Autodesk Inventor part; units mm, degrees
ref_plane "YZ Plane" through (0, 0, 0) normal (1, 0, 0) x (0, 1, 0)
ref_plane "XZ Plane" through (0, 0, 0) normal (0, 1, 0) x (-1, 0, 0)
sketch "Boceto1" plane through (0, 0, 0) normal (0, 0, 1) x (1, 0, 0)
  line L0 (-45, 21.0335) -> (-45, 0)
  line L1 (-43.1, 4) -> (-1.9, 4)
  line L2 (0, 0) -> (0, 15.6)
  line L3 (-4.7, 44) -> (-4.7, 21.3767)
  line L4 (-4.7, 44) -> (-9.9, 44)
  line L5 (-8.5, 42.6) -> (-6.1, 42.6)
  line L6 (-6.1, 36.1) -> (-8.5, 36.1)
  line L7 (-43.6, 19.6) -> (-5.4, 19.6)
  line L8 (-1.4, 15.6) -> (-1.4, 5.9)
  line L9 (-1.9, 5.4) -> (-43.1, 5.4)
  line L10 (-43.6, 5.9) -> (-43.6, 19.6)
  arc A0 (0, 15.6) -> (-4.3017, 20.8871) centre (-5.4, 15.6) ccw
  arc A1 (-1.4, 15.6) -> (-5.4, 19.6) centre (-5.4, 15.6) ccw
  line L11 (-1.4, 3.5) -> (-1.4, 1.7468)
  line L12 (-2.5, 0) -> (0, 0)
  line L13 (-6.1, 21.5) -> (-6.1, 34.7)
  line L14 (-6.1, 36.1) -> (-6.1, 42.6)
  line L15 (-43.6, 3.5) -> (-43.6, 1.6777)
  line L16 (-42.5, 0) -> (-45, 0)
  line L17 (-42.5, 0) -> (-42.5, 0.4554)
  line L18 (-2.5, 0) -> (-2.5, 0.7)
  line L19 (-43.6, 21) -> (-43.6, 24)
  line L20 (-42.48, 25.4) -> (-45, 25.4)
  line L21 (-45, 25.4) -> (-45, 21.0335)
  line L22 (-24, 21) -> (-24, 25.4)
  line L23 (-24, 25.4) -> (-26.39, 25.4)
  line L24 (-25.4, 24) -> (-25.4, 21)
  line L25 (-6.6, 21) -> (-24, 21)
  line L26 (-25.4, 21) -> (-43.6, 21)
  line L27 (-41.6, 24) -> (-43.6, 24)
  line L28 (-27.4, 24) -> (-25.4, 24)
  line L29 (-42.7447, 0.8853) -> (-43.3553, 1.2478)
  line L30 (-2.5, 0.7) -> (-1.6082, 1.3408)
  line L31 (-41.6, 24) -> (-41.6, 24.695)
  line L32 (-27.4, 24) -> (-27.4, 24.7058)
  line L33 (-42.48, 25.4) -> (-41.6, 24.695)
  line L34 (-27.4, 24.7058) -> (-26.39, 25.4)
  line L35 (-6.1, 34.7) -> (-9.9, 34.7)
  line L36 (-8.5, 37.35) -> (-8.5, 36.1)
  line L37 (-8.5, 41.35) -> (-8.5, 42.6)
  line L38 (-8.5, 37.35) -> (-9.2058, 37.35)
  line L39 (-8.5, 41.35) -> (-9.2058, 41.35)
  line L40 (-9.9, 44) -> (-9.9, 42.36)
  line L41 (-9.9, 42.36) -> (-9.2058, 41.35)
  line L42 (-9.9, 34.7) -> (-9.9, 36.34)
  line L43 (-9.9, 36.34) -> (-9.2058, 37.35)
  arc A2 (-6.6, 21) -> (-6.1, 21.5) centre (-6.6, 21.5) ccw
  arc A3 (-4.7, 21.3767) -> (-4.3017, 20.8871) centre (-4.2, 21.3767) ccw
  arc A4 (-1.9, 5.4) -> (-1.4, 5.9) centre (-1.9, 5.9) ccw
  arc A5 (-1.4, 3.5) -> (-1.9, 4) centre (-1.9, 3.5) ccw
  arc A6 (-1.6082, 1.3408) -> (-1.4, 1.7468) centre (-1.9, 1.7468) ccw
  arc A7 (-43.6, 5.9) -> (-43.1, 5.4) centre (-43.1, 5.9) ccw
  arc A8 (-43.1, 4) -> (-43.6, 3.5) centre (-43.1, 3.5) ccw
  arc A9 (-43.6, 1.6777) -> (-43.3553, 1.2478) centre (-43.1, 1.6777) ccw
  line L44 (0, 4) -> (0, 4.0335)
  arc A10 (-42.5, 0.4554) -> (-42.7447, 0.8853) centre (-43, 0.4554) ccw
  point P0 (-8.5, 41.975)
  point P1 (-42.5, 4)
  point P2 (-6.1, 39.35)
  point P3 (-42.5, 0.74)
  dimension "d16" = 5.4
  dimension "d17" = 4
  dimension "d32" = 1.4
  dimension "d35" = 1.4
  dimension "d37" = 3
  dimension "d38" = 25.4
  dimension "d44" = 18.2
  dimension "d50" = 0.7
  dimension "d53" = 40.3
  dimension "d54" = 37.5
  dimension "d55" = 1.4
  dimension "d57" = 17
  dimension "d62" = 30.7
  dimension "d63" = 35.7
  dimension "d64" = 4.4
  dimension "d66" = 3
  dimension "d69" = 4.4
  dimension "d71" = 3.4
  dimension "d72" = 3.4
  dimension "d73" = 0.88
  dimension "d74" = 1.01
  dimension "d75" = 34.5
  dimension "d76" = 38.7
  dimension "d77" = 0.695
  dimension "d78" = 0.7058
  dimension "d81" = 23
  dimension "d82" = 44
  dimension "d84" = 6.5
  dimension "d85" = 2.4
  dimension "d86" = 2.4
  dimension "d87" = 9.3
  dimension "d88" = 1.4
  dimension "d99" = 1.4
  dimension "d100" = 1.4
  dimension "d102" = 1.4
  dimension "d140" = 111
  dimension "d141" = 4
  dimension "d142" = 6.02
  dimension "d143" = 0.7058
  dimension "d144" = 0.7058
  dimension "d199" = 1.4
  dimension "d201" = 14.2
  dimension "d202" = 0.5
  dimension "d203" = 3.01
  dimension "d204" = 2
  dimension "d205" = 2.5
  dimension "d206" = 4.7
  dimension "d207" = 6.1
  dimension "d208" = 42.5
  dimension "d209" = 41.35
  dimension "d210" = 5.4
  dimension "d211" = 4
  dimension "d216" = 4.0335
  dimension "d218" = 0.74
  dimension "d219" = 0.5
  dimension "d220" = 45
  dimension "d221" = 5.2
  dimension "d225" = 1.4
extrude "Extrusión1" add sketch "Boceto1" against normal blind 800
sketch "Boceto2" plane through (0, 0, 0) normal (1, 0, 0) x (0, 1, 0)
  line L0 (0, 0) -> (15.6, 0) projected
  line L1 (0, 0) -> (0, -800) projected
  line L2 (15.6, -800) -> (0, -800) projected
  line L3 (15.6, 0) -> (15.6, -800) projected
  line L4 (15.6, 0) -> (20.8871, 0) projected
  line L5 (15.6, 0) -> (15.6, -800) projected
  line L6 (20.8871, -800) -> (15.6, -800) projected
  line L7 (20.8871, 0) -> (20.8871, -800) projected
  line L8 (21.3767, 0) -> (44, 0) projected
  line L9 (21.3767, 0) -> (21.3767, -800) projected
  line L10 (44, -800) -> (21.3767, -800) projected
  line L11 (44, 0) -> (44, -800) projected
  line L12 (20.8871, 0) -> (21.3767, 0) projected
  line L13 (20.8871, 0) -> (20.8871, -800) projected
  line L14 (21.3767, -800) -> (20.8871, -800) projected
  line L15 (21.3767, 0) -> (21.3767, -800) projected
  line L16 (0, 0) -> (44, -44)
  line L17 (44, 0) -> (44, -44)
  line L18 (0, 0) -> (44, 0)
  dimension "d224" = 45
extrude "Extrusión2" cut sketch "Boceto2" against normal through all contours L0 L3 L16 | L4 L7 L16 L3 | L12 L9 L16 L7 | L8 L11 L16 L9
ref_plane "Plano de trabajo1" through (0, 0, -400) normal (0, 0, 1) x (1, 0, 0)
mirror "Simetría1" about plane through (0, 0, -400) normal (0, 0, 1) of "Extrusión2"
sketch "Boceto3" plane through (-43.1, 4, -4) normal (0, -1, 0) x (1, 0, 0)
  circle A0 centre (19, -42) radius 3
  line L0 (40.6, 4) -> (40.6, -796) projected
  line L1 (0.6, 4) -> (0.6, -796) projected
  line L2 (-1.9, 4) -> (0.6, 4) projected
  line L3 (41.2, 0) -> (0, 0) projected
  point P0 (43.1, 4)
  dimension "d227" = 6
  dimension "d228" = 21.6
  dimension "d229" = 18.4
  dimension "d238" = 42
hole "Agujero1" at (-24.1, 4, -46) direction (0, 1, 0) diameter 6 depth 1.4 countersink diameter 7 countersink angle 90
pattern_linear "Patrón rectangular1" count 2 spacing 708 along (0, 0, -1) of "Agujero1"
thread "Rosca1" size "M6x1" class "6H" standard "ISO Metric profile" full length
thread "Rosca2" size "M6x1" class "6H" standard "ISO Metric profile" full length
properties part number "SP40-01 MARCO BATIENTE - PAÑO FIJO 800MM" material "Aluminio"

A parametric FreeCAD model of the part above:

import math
import FreeCAD as App
import Part
import Sketcher
Q = App.Units.Quantity


def add_polygon(sketch, points):
    """Adds a closed chain of lines whose ends are joined by coincident constraints."""
    first, n = sketch.GeometryCount, len(points)
    for a, b in zip(points, points[1:] + points[:1]):
        sketch.addGeometry(Part.LineSegment(App.Vector(*a, 0), App.Vector(*b, 0)), False)
    for i in range(n):
        sketch.addConstraint(Sketcher.Constraint("Coincident", first + i, 2, first + (i + 1) % n, 1))

doc = App.newDocument("Part")
body = doc.addObject("PartDesign::Body", "Body")

sketch1 = doc.addObject("Sketcher::SketchObject", "Sketch")
body.addObject(sketch1)
sketch1.AttachmentSupport = (doc.XY_Plane, [""])
sketch1.MapMode = "FlatFace"
sketch1.addGeometry([
    Part.LineSegment(App.Vector(-45, 25.4, 0), App.Vector(-45, 0, 0)),
    Part.LineSegment(App.Vector(-45, 0, 0), App.Vector(-42.5, 0, 0)),
    Part.LineSegment(App.Vector(-42.5, 0, 0), App.Vector(-42.5, 0.4554, 0)),
    Part.ArcOfCircle(Part.Circle(App.Vector(-43, 0.4554, 0), App.Vector(0, 0, 1), 0.5), math.radians(0), math.radians(59.295659)),
    Part.LineSegment(App.Vector(-42.7447, 0.8853, 0), App.Vector(-43.3553, 1.2478, 0)),
    Part.ArcOfCircle(Part.Circle(App.Vector(-43.1, 1.6777, 0), App.Vector(0, 0, 1), 0.5), math.radians(180), math.radians(239.295659)),
    Part.LineSegment(App.Vector(-43.6, 1.6777, 0), App.Vector(-43.6, 3.5, 0)),
    Part.ArcOfCircle(Part.Circle(App.Vector(-43.1, 3.5, 0), App.Vector(0, 0, 1), 0.5), math.radians(90), math.radians(180)),
    Part.LineSegment(App.Vector(-43.1, 4, 0), App.Vector(-1.9, 4, 0)),
    Part.ArcOfCircle(Part.Circle(App.Vector(-1.9, 3.5, 0), App.Vector(0, 0, 1), 0.5), math.radians(0), math.radians(90)),
    Part.LineSegment(App.Vector(-1.4, 3.5, 0), App.Vector(-1.4, 1.7468, 0)),
    Part.ArcOfCircle(Part.Circle(App.Vector(-1.9, 1.7468, 0), App.Vector(0, 0, 1), 0.499983), math.radians(-54.294472), math.radians(0)),
    Part.LineSegment(App.Vector(-1.6082, 1.3408, 0), App.Vector(-2.5, 0.7, 0)),
    Part.LineSegment(App.Vector(-2.5, 0.7, 0), App.Vector(-2.5, 0, 0)),
    Part.LineSegment(App.Vector(-2.5, 0, 0), App.Vector(0, 0, 0)),
    Part.LineSegment(App.Vector(0, 0, 0), App.Vector(0, 15.6, 0)),
    Part.ArcOfCircle(Part.Circle(App.Vector(-5.4, 15.6, 0), App.Vector(0, 0, 1), 5.4), math.radians(0), math.radians(78.264734)),
    Part.ArcOfCircle(Part.Circle(App.Vector(-4.2, 21.3767, 0), App.Vector(0, 0, 1), 0.5), math.radians(180), math.radians(258.265363)),
    Part.LineSegment(App.Vector(-4.7, 21.3767, 0), App.Vector(-4.7, 44, 0)),
    Part.LineSegment(App.Vector(-4.7, 44, 0), App.Vector(-9.9, 44, 0)),
    Part.LineSegment(App.Vector(-9.9, 44, 0), App.Vector(-9.9, 42.36, 0)),
    Part.LineSegment(App.Vector(-9.9, 42.36, 0), App.Vector(-9.2058, 41.35, 0)),
    Part.LineSegment(App.Vector(-9.2058, 41.35, 0), App.Vector(-8.5, 41.35, 0)),
    Part.LineSegment(App.Vector(-8.5, 41.35, 0), App.Vector(-8.5, 42.6, 0)),
    Part.LineSegment(App.Vector(-8.5, 42.6, 0), App.Vector(-6.1, 42.6, 0)),
    Part.LineSegment(App.Vector(-6.1, 42.6, 0), App.Vector(-6.1, 36.1, 0)),
    Part.LineSegment(App.Vector(-6.1, 36.1, 0), App.Vector(-8.5, 36.1, 0)),
    Part.LineSegment(App.Vector(-8.5, 36.1, 0), App.Vector(-8.5, 37.35, 0)),
    Part.LineSegment(App.Vector(-8.5, 37.35, 0), App.Vector(-9.2058, 37.35, 0)),
    Part.LineSegment(App.Vector(-9.2058, 37.35, 0), App.Vector(-9.9, 36.34, 0)),
    Part.LineSegment(App.Vector(-9.9, 36.34, 0), App.Vector(-9.9, 34.7, 0)),
    Part.LineSegment(App.Vector(-9.9, 34.7, 0), App.Vector(-6.1, 34.7, 0)),
    Part.LineSegment(App.Vector(-6.1, 34.7, 0), App.Vector(-6.1, 21.5, 0)),
    Part.ArcOfCircle(Part.Circle(App.Vector(-6.6, 21.5, 0), App.Vector(0, 0, 1), 0.5), math.radians(-90), math.radians(0)),
    Part.LineSegment(App.Vector(-6.6, 21, 0), App.Vector(-24, 21, 0)),
    Part.LineSegment(App.Vector(-24, 21, 0), App.Vector(-24, 25.4, 0)),
    Part.LineSegment(App.Vector(-24, 25.4, 0), App.Vector(-26.39, 25.4, 0)),
    Part.LineSegment(App.Vector(-26.39, 25.4, 0), App.Vector(-27.4, 24.7058, 0)),
    Part.LineSegment(App.Vector(-27.4, 24.7058, 0), App.Vector(-27.4, 24, 0)),
    Part.LineSegment(App.Vector(-27.4, 24, 0), App.Vector(-25.4, 24, 0)),
    Part.LineSegment(App.Vector(-25.4, 24, 0), App.Vector(-25.4, 21, 0)),
    Part.LineSegment(App.Vector(-25.4, 21, 0), App.Vector(-43.6, 21, 0)),
    Part.LineSegment(App.Vector(-43.6, 21, 0), App.Vector(-43.6, 24, 0)),
    Part.LineSegment(App.Vector(-43.6, 24, 0), App.Vector(-41.6, 24, 0)),
    Part.LineSegment(App.Vector(-41.6, 24, 0), App.Vector(-41.6, 24.695, 0)),
    Part.LineSegment(App.Vector(-41.6, 24.695, 0), App.Vector(-42.48, 25.4, 0)),
    Part.LineSegment(App.Vector(-42.48, 25.4, 0), App.Vector(-45, 25.4, 0)),
    Part.LineSegment(App.Vector(-43.6, 5.9, 0), App.Vector(-43.6, 19.6, 0)),
    Part.LineSegment(App.Vector(-43.6, 19.6, 0), App.Vector(-5.4, 19.6, 0)),
    Part.ArcOfCircle(Part.Circle(App.Vector(-5.4, 15.6, 0), App.Vector(0, 0, 1), 4), math.radians(0), math.radians(90)),
    Part.LineSegment(App.Vector(-1.4, 15.6, 0), App.Vector(-1.4, 5.9, 0)),
    Part.ArcOfCircle(Part.Circle(App.Vector(-1.9, 5.9, 0), App.Vector(0, 0, 1), 0.5), math.radians(-90), math.radians(0)),
    Part.LineSegment(App.Vector(-1.9, 5.4, 0), App.Vector(-43.1, 5.4, 0)),
    Part.ArcOfCircle(Part.Circle(App.Vector(-43.1, 5.9, 0), App.Vector(0, 0, 1), 0.5), math.radians(180), math.radians(270)),
], False)
sketch1.addConstraint([
    Sketcher.Constraint("Coincident", 0, 2, 1, 1),
    Sketcher.Constraint("Coincident", 1, 2, 2, 1),
    Sketcher.Constraint("Tangent", 2, 2, 3, 1),
    Sketcher.Constraint("Tangent", 3, 2, 4, 1),
    Sketcher.Constraint("Tangent", 4, 2, 5, 2),
    Sketcher.Constraint("Tangent", 5, 1, 6, 1),
    Sketcher.Constraint("Tangent", 6, 2, 7, 2),
    Sketcher.Constraint("Tangent", 7, 1, 8, 1),
    Sketcher.Constraint("Tangent", 8, 2, 9, 2),
    Sketcher.Constraint("Tangent", 9, 1, 10, 1),
    Sketcher.Constraint("Tangent", 10, 2, 11, 2),
    Sketcher.Constraint("Tangent", 11, 1, 12, 1),
    Sketcher.Constraint("Coincident", 12, 2, 13, 1),
    Sketcher.Constraint("Coincident", 13, 2, 14, 1),
    Sketcher.Constraint("Coincident", 14, 2, 15, 1),
    Sketcher.Constraint("Tangent", 15, 2, 16, 1),
    Sketcher.Constraint("Tangent", 16, 2, 17, 2),
    Sketcher.Constraint("Tangent", 17, 1, 18, 1),
    Sketcher.Constraint("Coincident", 18, 2, 19, 1),
    Sketcher.Constraint("Coincident", 19, 2, 20, 1),
    Sketcher.Constraint("Coincident", 20, 2, 21, 1),
    Sketcher.Constraint("Coincident", 21, 2, 22, 1),
    Sketcher.Constraint("Coincident", 22, 2, 23, 1),
    Sketcher.Constraint("Coincident", 23, 2, 24, 1),
    Sketcher.Constraint("Coincident", 24, 2, 25, 1),
    Sketcher.Constraint("Coincident", 25, 2, 26, 1),
    Sketcher.Constraint("Coincident", 26, 2, 27, 1),
    Sketcher.Constraint("Coincident", 27, 2, 28, 1),
    Sketcher.Constraint("Coincident", 28, 2, 29, 1),
    Sketcher.Constraint("Coincident", 29, 2, 30, 1),
    Sketcher.Constraint("Coincident", 30, 2, 31, 1),
    Sketcher.Constraint("Coincident", 31, 2, 32, 1),
    Sketcher.Constraint("Tangent", 32, 2, 33, 2),
    Sketcher.Constraint("Tangent", 33, 1, 34, 1),
    Sketcher.Constraint("Coincident", 34, 2, 35, 1),
    Sketcher.Constraint("Coincident", 35, 2, 36, 1),
    Sketcher.Constraint("Coincident", 36, 2, 37, 1),
    Sketcher.Constraint("Coincident", 37, 2, 38, 1),
    Sketcher.Constraint("Coincident", 38, 2, 39, 1),
    Sketcher.Constraint("Coincident", 39, 2, 40, 1),
    Sketcher.Constraint("Coincident", 40, 2, 41, 1),
    Sketcher.Constraint("Coincident", 41, 2, 42, 1),
    Sketcher.Constraint("Coincident", 42, 2, 43, 1),
    Sketcher.Constraint("Coincident", 43, 2, 44, 1),
    Sketcher.Constraint("Coincident", 44, 2, 45, 1),
    Sketcher.Constraint("Coincident", 45, 2, 46, 1),
    Sketcher.Constraint("Coincident", 46, 2, 0, 1),
    Sketcher.Constraint("Coincident", 47, 2, 48, 1),
    Sketcher.Constraint("Tangent", 48, 2, 49, 2),
    Sketcher.Constraint("Tangent", 49, 1, 50, 1),
    Sketcher.Constraint("Tangent", 50, 2, 51, 2),
    Sketcher.Constraint("Tangent", 51, 1, 52, 1),
    Sketcher.Constraint("Tangent", 52, 2, 53, 2),
    Sketcher.Constraint("Tangent", 53, 1, 47, 1),
    Sketcher.Constraint("Vertical", 0),
    Sketcher.Constraint("Horizontal", 1),
    Sketcher.Constraint("Vertical", 2),
    Sketcher.Constraint("Vertical", 6),
    Sketcher.Constraint("Horizontal", 8),
    Sketcher.Constraint("Vertical", 10),
    Sketcher.Constraint("Vertical", 13),
    Sketcher.Constraint("Horizontal", 14),
    Sketcher.Constraint("Vertical", 15),
    Sketcher.Constraint("Vertical", 18),
    Sketcher.Constraint("Horizontal", 19),
    Sketcher.Constraint("Vertical", 20),
    Sketcher.Constraint("Horizontal", 22),
    Sketcher.Constraint("Vertical", 23),
    Sketcher.Constraint("Horizontal", 24),
    Sketcher.Constraint("Vertical", 25),
    Sketcher.Constraint("Horizontal", 26),
    Sketcher.Constraint("Vertical", 27),
    Sketcher.Constraint("Horizontal", 28),
    Sketcher.Constraint("Vertical", 30),
    Sketcher.Constraint("Horizontal", 31),
    Sketcher.Constraint("Vertical", 32),
    Sketcher.Constraint("Horizontal", 34),
    Sketcher.Constraint("Vertical", 35),
    Sketcher.Constraint("Horizontal", 36),
    Sketcher.Constraint("Vertical", 38),
    Sketcher.Constraint("Horizontal", 39),
    Sketcher.Constraint("Vertical", 40),
    Sketcher.Constraint("Horizontal", 41),
    Sketcher.Constraint("Vertical", 42),
    Sketcher.Constraint("Horizontal", 43),
    Sketcher.Constraint("Vertical", 44),
    Sketcher.Constraint("Horizontal", 46),
    Sketcher.Constraint("Vertical", 47),
    Sketcher.Constraint("Horizontal", 48),
    Sketcher.Constraint("Vertical", 50),
    Sketcher.Constraint("Horizontal", 52),
    Sketcher.Constraint("Coincident", 14, 2, -1, 1),
    Sketcher.Constraint("Coincident", 49, 3, 16, 3),
    Sketcher.Constraint("Equal", 3, 5),
    Sketcher.Constraint("Equal", 5, 7),
    Sketcher.Constraint("Equal", 7, 9),
    Sketcher.Constraint("Equal", 9, 11),
    Sketcher.Constraint("Equal", 11, 17),
    Sketcher.Constraint("Equal", 17, 33),
    Sketcher.Constraint("Equal", 33, 51),
    Sketcher.Constraint("Equal", 51, 53),
    Sketcher.Constraint("PointOnObject", 0, 2, -1),
    Sketcher.Constraint("Perpendicular", 21, 37),
    Sketcher.Constraint("Horizontal", 34, 2, 40, 2),
    Sketcher.Constraint("Horizontal", 39, 2, 42, 2),
    Sketcher.Constraint("Horizontal", 36, 2, 45, 2),
    Sketcher.Constraint("Vertical", 11, 3, 51, 3),
    Sketcher.Constraint("Vertical", 7, 3, 53, 3),
    Sketcher.Constraint("Vertical", 23, 2, 26, 2),
    Sketcher.Constraint("Vertical", 21, 2, 28, 2),
    Sketcher.Constraint("Vertical", 20, 2, 29, 2),
    Sketcher.Constraint("Vertical", 25, 2, 31, 2),
    Sketcher.Constraint("Vertical", 6, 2, 41, 2),
    Sketcher.Constraint("Equal", 1, 14),
    Sketcher.Constraint("Equal", 39, 43),
    Sketcher.Constraint("Equal", 23, 27),
    Sketcher.Constraint("Equal", 20, 30),
    Sketcher.Constraint("Equal", 28, 38),
    Sketcher.Constraint("Equal", 21, 29),
    Sketcher.Constraint("Equal", 29, 37),
    Sketcher.Constraint("Radius", 49, Q("4 mm")),
    Sketcher.Constraint("Radius", 3, Q("0.5 mm")),
    Sketcher.Constraint("Radius", 16, Q("5.4 mm")),
    Sketcher.Constraint("DistanceX", 39, 1, 39, 2, Q("2 mm")),
    Sketcher.Constraint("DistanceY", 40, 2, 40, 1, Q("3 mm")),
    Sketcher.Constraint("DistanceX", 1, 1, 1, 2, Q("2.5 mm")),
    Sketcher.Constraint("DistanceX", 19, 2, 19, 1, Q("5.2 mm")),
    Sketcher.Constraint("DistanceX", 24, 1, 24, 2, Q("2.4 mm")),
    Sketcher.Constraint("DistanceX", 41, 2, 41, 1, Q("18.2 mm")),
    Sketcher.Constraint("DistanceY", 0, 2, 0, 1, Q("25.4 mm")),
    Sketcher.Constraint("DistanceY", 13, 2, 13, 1, Q("0.7 mm")),
    Sketcher.Constraint("DistanceY", 25, 2, 25, 1, Q("6.5 mm")),
    Sketcher.Constraint("DistanceY", 35, 1, 35, 2, Q("4.4 mm")),
    Sketcher.Constraint("DistanceX", 0, 2, -1, 1, Q("45 mm")),
    Sketcher.Constraint("DistanceY", -1, 1, 7, 1, Q("4 mm")),
    Sketcher.Constraint("DistanceY", -1, 1, 18, 2, Q("44 mm")),
    Sketcher.Constraint("DistanceX", 17, 1, -1, 1, Q("4.7 mm")),
    Sketcher.Constraint("DistanceX", 39, 2, -1, 1, Q("25.4 mm")),
    Sketcher.Constraint("DistanceY", -1, 1, 51, 1, Q("5.4 mm")),
    Sketcher.Constraint("DistanceY", 44, 1, 44, 2, Q("0.695 mm")),
    Sketcher.Constraint("DistanceY", -1, 1, 21, 2, Q("41.35 mm")),
    Sketcher.Constraint("DistanceX", 22, 1, 22, 2, Q("0.7058 mm")),
    Sketcher.Constraint("DistanceX", 34, 2, 34, 1, Q("17.4 mm")),
    Sketcher.Constraint("DistanceY", 15, 1, 15, 2, Q("15.6 mm")),
    Sketcher.Constraint("DistanceY", 32, 2, 32, 1, Q("13.2 mm")),
    Sketcher.Constraint("Angle", 12, Q("-144.301 deg")),
    Sketcher.Constraint("Angle", 45, Q("141.3005 deg")),
    Sketcher.Constraint("DistanceX", 36, 2, 36, 1, Q("2.39 mm")),
    Sketcher.Constraint("Distance", 4, Q("0.71 mm")),
    Sketcher.Constraint("DistanceY", 2, 1, 2, 2, Q("0.4554 mm")),
])
pad1 = doc.addObject("PartDesign::Pad", "Pad")
body.addObject(pad1)
pad1.Profile = sketch1
pad1.Length = 800
pad1.Reversed = True

sketch2 = doc.addObject("Sketcher::SketchObject", "Sketch001")
body.addObject(sketch2)
sketch2.AttachmentSupport = (doc.YZ_Plane, [""])
sketch2.MapMode = "FlatFace"
add_polygon(sketch2, [(0, 0), (44, -44), (44, 0)])
sketch2.addConstraint([
    Sketcher.Constraint("Vertical", 1),
    Sketcher.Constraint("Horizontal", 2),
    Sketcher.Constraint("Coincident", 2, 2, -1, 1),
    Sketcher.Constraint("Equal", 2, 1),
    Sketcher.Constraint("DistanceX", 2, 2, 2, 1, Q("44 mm")),
])
pocket1 = doc.addObject("PartDesign::Pocket", "Pocket")
body.addObject(pocket1)
pocket1.Profile = sketch2
pocket1.Type = "ThroughAll"
doc.recompute()

datumplane = doc.addObject("PartDesign::Plane", "DatumPlane")
body.addObject(datumplane)
datumplane.AttachmentSupport = (doc.XY_Plane, [""])
datumplane.MapMode = "FlatFace"
datumplane.AttachmentOffset = App.Placement(App.Vector(0, 0, -400), App.Rotation())
mirrored = doc.addObject("PartDesign::Mirrored", "Mirrored")
body.addObject(mirrored)
mirrored.Originals = [pocket1]
mirrored.MirrorPlane = (datumplane, [""])
body.Tip = mirrored

sketch3 = doc.addObject("Sketcher::SketchObject", "Sketch002")
body.addObject(sketch3)
sketch3.AttachmentSupport = (doc.XZ_Plane, [""])
sketch3.MapMode = "FlatFace"
sketch3.AttachmentOffset = App.Placement(App.Vector(0, 0, -4), App.Rotation())
sketch3.addGeometry(Part.Circle(App.Vector(-24.1, -46, 0), App.Vector(0, 0, 1), 3), False)
sketch3.addConstraint([
    Sketcher.Constraint("Diameter", 0, Q("6 mm")),
    Sketcher.Constraint("DistanceY", 0, 3, -1, 1, Q("46 mm")),
    Sketcher.Constraint("DistanceX", 0, 3, -1, 1, Q("24.1 mm")),
])
doc.recompute()
hole = doc.addObject("PartDesign::Hole", "Hole")
body.addObject(hole)
hole.Profile = sketch3
hole.ThreadType = "None"
hole.Diameter = 6
hole.DepthType = "Dimension"
hole.Depth = 1.4
hole.DrillPoint = "Flat"
hole.HoleCutType = "Countersink"
hole.HoleCutDiameter = 7
hole.HoleCutCountersinkAngle = 90
doc.recompute()

linearpattern = doc.addObject("PartDesign::LinearPattern", "LinearPattern")
body.addObject(linearpattern)
linearpattern.Originals = [hole]
linearpattern.Direction = (doc.Z_Axis, [""])
linearpattern.Mode = "offset"
linearpattern.Offset = 708
linearpattern.Occurrences = 2
linearpattern.Reversed = True
body.Tip = linearpattern

doc.recompute()
